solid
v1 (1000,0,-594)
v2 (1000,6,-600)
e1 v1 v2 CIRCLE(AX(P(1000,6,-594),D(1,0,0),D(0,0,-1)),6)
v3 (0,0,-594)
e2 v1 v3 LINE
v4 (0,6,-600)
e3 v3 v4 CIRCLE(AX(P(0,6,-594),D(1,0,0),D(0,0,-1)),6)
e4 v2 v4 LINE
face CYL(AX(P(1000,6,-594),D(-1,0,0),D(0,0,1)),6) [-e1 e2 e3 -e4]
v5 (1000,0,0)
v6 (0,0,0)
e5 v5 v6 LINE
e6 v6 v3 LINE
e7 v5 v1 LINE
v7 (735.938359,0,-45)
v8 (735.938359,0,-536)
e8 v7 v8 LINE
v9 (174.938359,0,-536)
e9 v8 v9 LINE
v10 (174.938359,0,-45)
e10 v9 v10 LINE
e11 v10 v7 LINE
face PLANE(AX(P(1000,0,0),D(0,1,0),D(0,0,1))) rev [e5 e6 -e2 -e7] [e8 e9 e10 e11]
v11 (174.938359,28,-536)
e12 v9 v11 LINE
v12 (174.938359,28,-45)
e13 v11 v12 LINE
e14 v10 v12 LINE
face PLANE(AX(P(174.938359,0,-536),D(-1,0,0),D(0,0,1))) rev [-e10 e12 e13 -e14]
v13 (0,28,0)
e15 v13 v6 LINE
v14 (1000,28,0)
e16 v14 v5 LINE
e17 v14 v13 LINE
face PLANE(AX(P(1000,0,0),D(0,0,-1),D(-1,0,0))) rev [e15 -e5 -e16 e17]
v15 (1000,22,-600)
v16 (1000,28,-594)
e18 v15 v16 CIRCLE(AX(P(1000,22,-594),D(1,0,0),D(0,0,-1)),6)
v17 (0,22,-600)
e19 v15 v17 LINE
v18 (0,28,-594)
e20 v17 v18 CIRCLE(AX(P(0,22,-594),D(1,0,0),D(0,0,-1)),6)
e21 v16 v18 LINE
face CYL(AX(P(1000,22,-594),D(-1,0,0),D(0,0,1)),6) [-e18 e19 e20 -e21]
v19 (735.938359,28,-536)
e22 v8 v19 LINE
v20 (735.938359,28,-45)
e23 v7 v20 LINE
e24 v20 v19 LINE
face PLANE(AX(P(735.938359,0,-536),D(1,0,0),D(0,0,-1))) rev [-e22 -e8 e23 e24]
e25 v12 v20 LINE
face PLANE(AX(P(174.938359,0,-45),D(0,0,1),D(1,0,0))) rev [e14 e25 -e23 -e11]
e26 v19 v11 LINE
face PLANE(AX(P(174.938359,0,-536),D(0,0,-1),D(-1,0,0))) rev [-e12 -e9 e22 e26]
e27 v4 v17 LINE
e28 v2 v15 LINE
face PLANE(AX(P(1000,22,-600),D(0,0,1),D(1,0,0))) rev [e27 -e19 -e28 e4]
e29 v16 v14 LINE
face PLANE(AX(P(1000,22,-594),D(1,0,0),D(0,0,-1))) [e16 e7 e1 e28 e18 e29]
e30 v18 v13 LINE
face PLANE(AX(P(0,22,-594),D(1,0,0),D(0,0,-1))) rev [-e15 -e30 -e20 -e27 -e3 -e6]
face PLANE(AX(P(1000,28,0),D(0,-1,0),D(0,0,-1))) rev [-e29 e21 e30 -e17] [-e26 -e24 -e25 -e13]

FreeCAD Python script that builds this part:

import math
import FreeCAD as App
import Part
import Sketcher

V = App.Vector
Q = App.Units.Quantity


def add_polygon(sketch, points):
    """Adds a closed chain of lines whose ends are joined by coincident constraints."""
    first, n = sketch.GeometryCount, len(points)
    for a, b in zip(points, points[1:] + points[:1]):
        sketch.addGeometry(Part.LineSegment(App.Vector(*a, 0), App.Vector(*b, 0)), False)
    for i in range(n):
        sketch.addConstraint(Sketcher.Constraint("Coincident", first + i, 2, first + (i + 1) % n, 1))

doc = App.newDocument("Part")
body = doc.addObject("PartDesign::Body", "Body")

sketch1 = body.newObject("Sketcher::SketchObject", "Sketch")
sketch1.AttachmentSupport = (doc.getObject("YZ_Plane"), [""])
sketch1.MapMode = "FlatFace"
sketch1.addGeometry([
    Part.LineSegment(V(0, 0, 0), V(0, -594, 0)),
    Part.ArcOfCircle(Part.Circle(V(6, -594, 0), V(0, 0, 1), 6), math.radians(180), math.radians(270)),
    Part.LineSegment(V(6, -600, 0), V(22, -600, 0)),
    Part.ArcOfCircle(Part.Circle(V(22, -594, 0), V(0, 0, 1), 6), math.radians(-90), math.radians(0)),
    Part.LineSegment(V(28, -594, 0), V(28, 0, 0)),
    Part.LineSegment(V(28, 0, 0), V(0, 0, 0)),
], False)
sketch1.addConstraint([
    Sketcher.Constraint("Tangent", 0, 2, 1, 1),
    Sketcher.Constraint("Tangent", 1, 2, 2, 1),
    Sketcher.Constraint("Tangent", 2, 2, 3, 1),
    Sketcher.Constraint("Tangent", 3, 2, 4, 1),
    Sketcher.Constraint("Coincident", 4, 2, 5, 1),
    Sketcher.Constraint("Coincident", 5, 2, 0, 1),
    Sketcher.Constraint("Vertical", 0),
    Sketcher.Constraint("Horizontal", 2),
    Sketcher.Constraint("Vertical", 4),
    Sketcher.Constraint("Horizontal", 5),
    Sketcher.Constraint("Coincident", 5, 2, -1, 1),
    Sketcher.Constraint("Equal", 1, 3),
    Sketcher.Constraint("Radius", 1, Q("6 mm")),
    Sketcher.Constraint("DistanceX", 2, 1, 2, 2, Q("16 mm")),
    Sketcher.Constraint("DistanceY", 0, 2, 0, 1, Q("594 mm")),
])
pad1 = body.newObject("PartDesign::Pad", "Pad")
pad1.Profile = sketch1
pad1.Length = 1000

sketch2 = body.newObject("Sketcher::SketchObject", "Sketch001")
sketch2.AttachmentSupport = (doc.getObject("XZ_Plane"), [""])
sketch2.MapMode = "FlatFace"
sketch2.AttachmentOffset = App.Placement(V(0, 0, -28), App.Rotation())
add_polygon(sketch2, [(175, -536), (175, -45), (736, -45), (736, -536)])
sketch2.addConstraint([
    Sketcher.Constraint("Vertical", 0),
    Sketcher.Constraint("Horizontal", 1),
    Sketcher.Constraint("Vertical", 2),
    Sketcher.Constraint("Horizontal", 3),
    Sketcher.Constraint("DistanceX", 1, 1, 1, 2, Q("561 mm")),
    Sketcher.Constraint("DistanceY", 0, 1, 0, 2, Q("491 mm")),
    Sketcher.Constraint("DistanceY", 0, 2, -1, 1, Q("45 mm")),
    Sketcher.Constraint("DistanceX", -1, 1, 0, 2, Q("174.938359 mm")),
])
pocket1 = body.newObject("PartDesign::Pocket", "Pocket")
pocket1.Profile = sketch2
pocket1.Type = "ThroughAll"
pocket1.Reversed = True

doc.recompute()
